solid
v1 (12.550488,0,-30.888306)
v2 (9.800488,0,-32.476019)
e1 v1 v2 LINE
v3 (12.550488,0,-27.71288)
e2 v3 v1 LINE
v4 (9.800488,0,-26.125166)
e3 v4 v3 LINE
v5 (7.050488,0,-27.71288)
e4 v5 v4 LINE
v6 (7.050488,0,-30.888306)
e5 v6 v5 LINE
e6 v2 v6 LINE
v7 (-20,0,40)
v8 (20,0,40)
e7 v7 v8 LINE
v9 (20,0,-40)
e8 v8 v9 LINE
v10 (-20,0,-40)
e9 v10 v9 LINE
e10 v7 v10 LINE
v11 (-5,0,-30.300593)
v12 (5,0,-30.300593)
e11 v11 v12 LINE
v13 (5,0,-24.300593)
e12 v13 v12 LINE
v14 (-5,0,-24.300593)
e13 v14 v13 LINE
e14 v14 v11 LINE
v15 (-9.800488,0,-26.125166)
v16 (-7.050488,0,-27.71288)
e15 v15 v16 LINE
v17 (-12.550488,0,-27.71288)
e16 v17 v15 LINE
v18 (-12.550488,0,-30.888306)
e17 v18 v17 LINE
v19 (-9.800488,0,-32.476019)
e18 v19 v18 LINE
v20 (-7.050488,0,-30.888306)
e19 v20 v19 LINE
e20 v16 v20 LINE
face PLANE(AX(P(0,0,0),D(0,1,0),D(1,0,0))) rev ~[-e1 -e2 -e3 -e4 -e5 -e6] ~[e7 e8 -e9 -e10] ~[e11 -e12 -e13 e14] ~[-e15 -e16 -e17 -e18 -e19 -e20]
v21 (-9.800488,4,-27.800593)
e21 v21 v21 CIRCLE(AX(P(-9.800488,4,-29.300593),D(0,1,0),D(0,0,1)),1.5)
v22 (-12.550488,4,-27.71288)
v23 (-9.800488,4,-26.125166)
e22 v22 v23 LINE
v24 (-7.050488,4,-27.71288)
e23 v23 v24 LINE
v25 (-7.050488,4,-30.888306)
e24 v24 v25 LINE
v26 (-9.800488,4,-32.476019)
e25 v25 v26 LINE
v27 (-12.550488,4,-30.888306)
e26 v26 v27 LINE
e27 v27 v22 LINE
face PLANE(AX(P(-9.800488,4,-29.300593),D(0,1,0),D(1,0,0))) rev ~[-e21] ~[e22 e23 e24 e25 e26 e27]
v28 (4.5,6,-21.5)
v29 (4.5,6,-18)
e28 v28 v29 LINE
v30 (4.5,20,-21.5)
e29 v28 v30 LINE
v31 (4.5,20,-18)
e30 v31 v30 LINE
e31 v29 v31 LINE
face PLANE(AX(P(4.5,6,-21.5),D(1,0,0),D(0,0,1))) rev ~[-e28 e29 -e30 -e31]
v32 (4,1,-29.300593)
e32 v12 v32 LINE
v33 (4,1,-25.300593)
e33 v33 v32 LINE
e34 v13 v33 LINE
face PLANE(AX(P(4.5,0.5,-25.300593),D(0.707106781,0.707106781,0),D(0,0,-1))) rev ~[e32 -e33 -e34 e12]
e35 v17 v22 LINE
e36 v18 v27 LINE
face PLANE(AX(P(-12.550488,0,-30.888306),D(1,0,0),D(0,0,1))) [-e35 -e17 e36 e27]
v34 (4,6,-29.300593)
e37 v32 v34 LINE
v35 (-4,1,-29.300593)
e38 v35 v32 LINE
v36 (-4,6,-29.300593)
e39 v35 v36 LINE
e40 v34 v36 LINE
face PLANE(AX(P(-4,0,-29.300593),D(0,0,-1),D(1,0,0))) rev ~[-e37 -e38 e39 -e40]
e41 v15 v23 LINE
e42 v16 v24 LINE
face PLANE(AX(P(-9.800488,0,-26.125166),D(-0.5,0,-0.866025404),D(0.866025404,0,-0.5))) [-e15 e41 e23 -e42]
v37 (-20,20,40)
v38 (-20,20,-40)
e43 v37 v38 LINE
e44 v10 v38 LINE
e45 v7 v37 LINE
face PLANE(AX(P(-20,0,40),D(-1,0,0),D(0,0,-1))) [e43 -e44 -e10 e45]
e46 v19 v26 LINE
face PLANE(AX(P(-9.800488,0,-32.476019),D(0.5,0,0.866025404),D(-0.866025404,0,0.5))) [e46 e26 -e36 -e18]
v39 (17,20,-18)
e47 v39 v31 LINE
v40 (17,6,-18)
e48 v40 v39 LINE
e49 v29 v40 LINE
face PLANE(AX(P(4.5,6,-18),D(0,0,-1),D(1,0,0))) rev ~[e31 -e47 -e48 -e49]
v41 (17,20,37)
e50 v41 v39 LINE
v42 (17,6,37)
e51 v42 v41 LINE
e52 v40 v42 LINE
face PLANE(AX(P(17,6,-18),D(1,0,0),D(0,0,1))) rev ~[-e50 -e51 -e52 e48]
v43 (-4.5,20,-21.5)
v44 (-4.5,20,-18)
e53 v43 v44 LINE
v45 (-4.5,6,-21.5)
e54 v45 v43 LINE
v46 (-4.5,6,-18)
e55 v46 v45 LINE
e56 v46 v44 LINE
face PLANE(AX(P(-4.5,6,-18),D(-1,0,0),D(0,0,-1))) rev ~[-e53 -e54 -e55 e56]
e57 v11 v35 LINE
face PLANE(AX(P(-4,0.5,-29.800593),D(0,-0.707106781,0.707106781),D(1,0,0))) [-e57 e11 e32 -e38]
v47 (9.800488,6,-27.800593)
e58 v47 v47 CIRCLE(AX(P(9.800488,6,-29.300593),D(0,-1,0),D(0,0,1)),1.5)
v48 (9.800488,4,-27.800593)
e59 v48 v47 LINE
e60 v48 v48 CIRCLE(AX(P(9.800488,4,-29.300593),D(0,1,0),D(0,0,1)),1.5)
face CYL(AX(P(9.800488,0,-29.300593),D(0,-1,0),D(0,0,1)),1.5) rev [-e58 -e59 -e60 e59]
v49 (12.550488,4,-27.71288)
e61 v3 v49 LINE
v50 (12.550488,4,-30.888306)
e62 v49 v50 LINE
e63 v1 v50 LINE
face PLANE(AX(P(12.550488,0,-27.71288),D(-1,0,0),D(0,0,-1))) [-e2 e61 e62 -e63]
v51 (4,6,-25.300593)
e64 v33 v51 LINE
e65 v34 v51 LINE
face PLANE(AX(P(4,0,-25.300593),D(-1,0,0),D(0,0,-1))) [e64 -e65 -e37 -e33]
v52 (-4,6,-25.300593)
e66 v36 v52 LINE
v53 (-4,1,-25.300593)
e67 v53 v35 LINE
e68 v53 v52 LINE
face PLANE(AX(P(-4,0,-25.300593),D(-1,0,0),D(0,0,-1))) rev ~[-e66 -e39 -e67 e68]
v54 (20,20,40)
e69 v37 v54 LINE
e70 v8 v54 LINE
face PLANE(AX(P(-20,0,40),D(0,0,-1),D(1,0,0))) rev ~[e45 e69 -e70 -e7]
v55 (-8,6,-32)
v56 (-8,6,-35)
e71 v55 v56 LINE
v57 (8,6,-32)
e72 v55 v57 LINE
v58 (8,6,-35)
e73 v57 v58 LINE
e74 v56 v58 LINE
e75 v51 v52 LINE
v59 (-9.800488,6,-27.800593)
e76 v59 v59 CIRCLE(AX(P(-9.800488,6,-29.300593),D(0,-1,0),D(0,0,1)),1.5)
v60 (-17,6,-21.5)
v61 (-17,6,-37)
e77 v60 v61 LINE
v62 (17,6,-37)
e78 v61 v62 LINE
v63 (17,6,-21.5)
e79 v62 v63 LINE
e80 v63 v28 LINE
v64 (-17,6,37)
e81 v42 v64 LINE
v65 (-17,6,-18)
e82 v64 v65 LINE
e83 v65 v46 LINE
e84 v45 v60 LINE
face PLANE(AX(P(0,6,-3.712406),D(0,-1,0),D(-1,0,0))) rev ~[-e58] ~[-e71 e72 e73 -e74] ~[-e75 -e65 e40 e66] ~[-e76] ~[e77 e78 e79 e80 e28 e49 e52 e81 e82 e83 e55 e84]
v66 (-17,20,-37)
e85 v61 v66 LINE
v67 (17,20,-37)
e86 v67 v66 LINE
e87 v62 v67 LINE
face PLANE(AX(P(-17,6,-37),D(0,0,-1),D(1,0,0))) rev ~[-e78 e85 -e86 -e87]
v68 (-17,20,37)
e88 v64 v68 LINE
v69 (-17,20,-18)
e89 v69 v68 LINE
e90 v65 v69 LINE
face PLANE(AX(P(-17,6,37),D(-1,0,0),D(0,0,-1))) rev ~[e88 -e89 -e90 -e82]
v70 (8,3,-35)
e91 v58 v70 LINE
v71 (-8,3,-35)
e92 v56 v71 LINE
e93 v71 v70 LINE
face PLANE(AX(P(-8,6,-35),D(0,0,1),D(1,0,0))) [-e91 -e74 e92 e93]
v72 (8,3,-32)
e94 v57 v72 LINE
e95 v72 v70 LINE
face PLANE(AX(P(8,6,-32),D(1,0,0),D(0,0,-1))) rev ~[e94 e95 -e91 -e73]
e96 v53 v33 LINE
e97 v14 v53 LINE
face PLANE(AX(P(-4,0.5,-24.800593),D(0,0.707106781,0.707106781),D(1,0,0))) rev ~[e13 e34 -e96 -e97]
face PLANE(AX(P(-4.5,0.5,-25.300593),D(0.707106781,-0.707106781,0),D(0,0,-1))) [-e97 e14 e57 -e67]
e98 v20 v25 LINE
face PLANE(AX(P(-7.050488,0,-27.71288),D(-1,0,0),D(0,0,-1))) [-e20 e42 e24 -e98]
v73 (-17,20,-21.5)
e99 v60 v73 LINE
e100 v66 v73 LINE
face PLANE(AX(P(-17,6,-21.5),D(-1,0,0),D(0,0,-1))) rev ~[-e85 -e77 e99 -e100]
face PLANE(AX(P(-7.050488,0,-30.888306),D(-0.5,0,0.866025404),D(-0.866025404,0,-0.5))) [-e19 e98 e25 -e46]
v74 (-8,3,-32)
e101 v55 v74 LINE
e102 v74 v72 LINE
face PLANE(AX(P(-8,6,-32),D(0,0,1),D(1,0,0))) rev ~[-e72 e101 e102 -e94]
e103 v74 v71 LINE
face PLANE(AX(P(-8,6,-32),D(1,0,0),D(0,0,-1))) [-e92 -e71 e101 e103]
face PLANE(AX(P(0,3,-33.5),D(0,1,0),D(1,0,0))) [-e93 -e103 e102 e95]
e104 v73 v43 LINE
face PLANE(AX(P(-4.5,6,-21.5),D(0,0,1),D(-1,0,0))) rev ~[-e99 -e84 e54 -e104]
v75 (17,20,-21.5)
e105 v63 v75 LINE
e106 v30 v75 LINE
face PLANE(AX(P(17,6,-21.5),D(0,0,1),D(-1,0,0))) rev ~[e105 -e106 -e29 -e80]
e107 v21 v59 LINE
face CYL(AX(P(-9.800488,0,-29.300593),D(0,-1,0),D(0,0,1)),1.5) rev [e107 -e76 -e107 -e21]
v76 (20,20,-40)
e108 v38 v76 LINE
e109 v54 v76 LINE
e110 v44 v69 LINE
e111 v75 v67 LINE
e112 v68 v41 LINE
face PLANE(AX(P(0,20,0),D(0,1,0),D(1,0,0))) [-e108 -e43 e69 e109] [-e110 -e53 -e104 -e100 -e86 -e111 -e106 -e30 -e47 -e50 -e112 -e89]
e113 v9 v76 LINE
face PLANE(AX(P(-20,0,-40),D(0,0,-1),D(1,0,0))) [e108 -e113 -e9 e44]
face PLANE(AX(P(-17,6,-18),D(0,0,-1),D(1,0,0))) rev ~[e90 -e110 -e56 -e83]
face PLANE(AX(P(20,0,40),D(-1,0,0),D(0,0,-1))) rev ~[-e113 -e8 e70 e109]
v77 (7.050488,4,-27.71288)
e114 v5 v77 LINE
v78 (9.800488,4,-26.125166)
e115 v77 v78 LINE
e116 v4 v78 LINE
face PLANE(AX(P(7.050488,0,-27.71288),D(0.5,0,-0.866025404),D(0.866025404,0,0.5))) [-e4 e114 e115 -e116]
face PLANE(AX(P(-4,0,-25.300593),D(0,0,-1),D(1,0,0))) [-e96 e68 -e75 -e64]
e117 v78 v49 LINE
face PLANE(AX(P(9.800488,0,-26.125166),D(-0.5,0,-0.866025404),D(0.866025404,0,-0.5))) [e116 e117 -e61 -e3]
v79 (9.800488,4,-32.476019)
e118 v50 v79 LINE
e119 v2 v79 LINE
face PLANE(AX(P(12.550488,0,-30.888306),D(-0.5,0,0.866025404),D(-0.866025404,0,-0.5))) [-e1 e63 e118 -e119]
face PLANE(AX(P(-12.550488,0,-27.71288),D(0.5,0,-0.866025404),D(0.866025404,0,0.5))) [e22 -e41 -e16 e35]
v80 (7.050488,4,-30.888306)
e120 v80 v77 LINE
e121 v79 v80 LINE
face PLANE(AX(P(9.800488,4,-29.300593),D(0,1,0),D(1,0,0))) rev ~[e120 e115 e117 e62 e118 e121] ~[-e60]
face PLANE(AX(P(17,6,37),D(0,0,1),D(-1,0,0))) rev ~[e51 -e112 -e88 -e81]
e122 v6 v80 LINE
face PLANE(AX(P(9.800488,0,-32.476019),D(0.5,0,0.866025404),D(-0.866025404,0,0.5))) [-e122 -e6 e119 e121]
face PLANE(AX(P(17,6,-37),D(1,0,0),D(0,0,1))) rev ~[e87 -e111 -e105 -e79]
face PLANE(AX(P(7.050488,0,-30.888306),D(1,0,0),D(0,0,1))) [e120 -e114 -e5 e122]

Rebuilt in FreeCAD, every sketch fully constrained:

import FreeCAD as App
import Part
import Sketcher
from FreeCAD import Vector
Q = App.Units.Quantity


def edges_at(feature, points):
    """Names of the edges that pass closest to the given points."""
    edges = feature.Shape.Edges
    near = lambda p: min(range(len(edges)), key=lambda i: edges[i].distToShape(Part.Vertex(*p))[0])
    return sorted({f"Edge{near(p) + 1}" for p in points})

doc = App.newDocument("Part")
body = doc.addObject("PartDesign::Body", "Body")

sketch1 = body.newObject("Sketcher::SketchObject", "Sketch")
sketch1.AttachmentSupport = (doc.getObject("XZ_Plane"), [""])
sketch1.MapMode = "FlatFace"
sketch1.addGeometry(Part.LineSegment(Vector(-20, -40, 0), Vector(-20, 40, 0)), False)
sketch1.addGeometry(Part.LineSegment(Vector(-20, 40, 0), Vector(20, 40, 0)), False)
sketch1.addGeometry(Part.LineSegment(Vector(20, 40, 0), Vector(20, -40, 0)), False)
sketch1.addGeometry(Part.LineSegment(Vector(20, -40, 0), Vector(-20, -40, 0)), False)
sketch1.addGeometry(Part.LineSegment(Vector(4, -25.3, 0), Vector(-4, -25.3, 0)), False)
sketch1.addGeometry(Part.LineSegment(Vector(-4, -25.3, 0), Vector(-4, -29.3, 0)), False)
sketch1.addGeometry(Part.LineSegment(Vector(-4, -29.3, 0), Vector(4, -29.3, 0)), False)
sketch1.addGeometry(Part.LineSegment(Vector(4, -29.3, 0), Vector(4, -25.3, 0)), False)
sketch1.addGeometry(Part.Circle(Vector(-9.8, -29.3, 0), Vector(0, 0, 1), 1.5), False)
sketch1.addGeometry(Part.Circle(Vector(9.8, -29.3, 0), Vector(0, 0, 1), 1.5), False)
sketch1.addConstraint(Sketcher.Constraint("Coincident", 0, 2, 1, 1))
sketch1.addConstraint(Sketcher.Constraint("Coincident", 1, 2, 2, 1))
sketch1.addConstraint(Sketcher.Constraint("Coincident", 2, 2, 3, 1))
sketch1.addConstraint(Sketcher.Constraint("Coincident", 3, 2, 0, 1))
sketch1.addConstraint(Sketcher.Constraint("Coincident", 4, 2, 5, 1))
sketch1.addConstraint(Sketcher.Constraint("Coincident", 5, 2, 6, 1))
sketch1.addConstraint(Sketcher.Constraint("Coincident", 6, 2, 7, 1))
sketch1.addConstraint(Sketcher.Constraint("Coincident", 7, 2, 4, 1))
sketch1.addConstraint(Sketcher.Constraint("Vertical", 0))
sketch1.addConstraint(Sketcher.Constraint("Horizontal", 1))
sketch1.addConstraint(Sketcher.Constraint("Vertical", 2))
sketch1.addConstraint(Sketcher.Constraint("Horizontal", 3))
sketch1.addConstraint(Sketcher.Constraint("Horizontal", 4))
sketch1.addConstraint(Sketcher.Constraint("Vertical", 5))
sketch1.addConstraint(Sketcher.Constraint("Horizontal", 6))
sketch1.addConstraint(Sketcher.Constraint("Vertical", 7))
sketch1.addConstraint(Sketcher.Constraint("Equal", 8, 9))
sketch1.addConstraint(Sketcher.Constraint("Symmetric", 0, 2, 2, 2, -1, 1))
sketch1.addConstraint(Sketcher.Constraint("Symmetric", 8, 3, 9, 3, -2))
sketch1.addConstraint(Sketcher.Constraint("Horizontal", 9, 3, 5, 2))
sketch1.addConstraint(Sketcher.Constraint("Diameter", 8, Q("3 mm")))
sketch1.addConstraint(Sketcher.Constraint("DistanceX", 1, 1, 1, 2, Q("40 mm")))
sketch1.addConstraint(Sketcher.Constraint("DistanceX", 4, 2, 4, 1, Q("8 mm")))
sketch1.addConstraint(Sketcher.Constraint("DistanceY", 0, 1, 0, 2, Q("80 mm")))
sketch1.addConstraint(Sketcher.Constraint("DistanceY", 5, 2, 5, 1, Q("4 mm")))
sketch1.addConstraint(Sketcher.Constraint("DistanceX", 4, 2, -1, 1, Q("4 mm")))
sketch1.addConstraint(Sketcher.Constraint("DistanceX", 8, 3, -1, 1, Q("9.800488 mm")))
sketch1.addConstraint(Sketcher.Constraint("DistanceY", 8, 3, -1, 1, Q("29.300593 mm")))
pad1 = body.newObject("PartDesign::Pad", "Pad")
pad1.Profile = sketch1
pad1.Length = 20
pad1.Reversed = True

sketch2 = body.newObject("Sketcher::SketchObject", "Sketch001")
sketch2.AttachmentSupport = (doc.getObject("XZ_Plane"), [""])
sketch2.MapMode = "FlatFace"
sketch2.AttachmentOffset = App.Placement(Vector(0, 0, -6), App.Rotation())
sketch2.addGeometry(Part.LineSegment(Vector(-17, 37, 0), Vector(17, 37, 0)), False)
sketch2.addGeometry(Part.LineSegment(Vector(17, 37, 0), Vector(17, -18, 0)), False)
sketch2.addGeometry(Part.LineSegment(Vector(17, -18, 0), Vector(4.5, -18, 0)), False)
sketch2.addGeometry(Part.LineSegment(Vector(4.5, -18, 0), Vector(4.5, -21.5, 0)), False)
sketch2.addGeometry(Part.LineSegment(Vector(4.5, -21.5, 0), Vector(17, -21.5, 0)), False)
sketch2.addGeometry(Part.LineSegment(Vector(17, -21.5, 0), Vector(17, -37, 0)), False)
sketch2.addGeometry(Part.LineSegment(Vector(17, -37, 0), Vector(-17, -37, 0)), False)
sketch2.addGeometry(Part.LineSegment(Vector(-17, -37, 0), Vector(-17, -21.5, 0)), False)
sketch2.addGeometry(Part.LineSegment(Vector(-17, -21.5, 0), Vector(-4.5, -21.5, 0)), False)
sketch2.addGeometry(Part.LineSegment(Vector(-4.5, -21.5, 0), Vector(-4.5, -18, 0)), False)
sketch2.addGeometry(Part.LineSegment(Vector(-4.5, -18, 0), Vector(-17, -18, 0)), False)
sketch2.addGeometry(Part.LineSegment(Vector(-17, -18, 0), Vector(-17, 37, 0)), False)
sketch2.addConstraint(Sketcher.Constraint("Coincident", 0, 2, 1, 1))
sketch2.addConstraint(Sketcher.Constraint("Coincident", 1, 2, 2, 1))
sketch2.addConstraint(Sketcher.Constraint("Coincident", 2, 2, 3, 1))
sketch2.addConstraint(Sketcher.Constraint("Coincident", 3, 2, 4, 1))
sketch2.addConstraint(Sketcher.Constraint("Coincident", 4, 2, 5, 1))
sketch2.addConstraint(Sketcher.Constraint("Coincident", 5, 2, 6, 1))
sketch2.addConstraint(Sketcher.Constraint("Coincident", 6, 2, 7, 1))
sketch2.addConstraint(Sketcher.Constraint("Coincident", 7, 2, 8, 1))
sketch2.addConstraint(Sketcher.Constraint("Coincident", 8, 2, 9, 1))
sketch2.addConstraint(Sketcher.Constraint("Coincident", 9, 2, 10, 1))
sketch2.addConstraint(Sketcher.Constraint("Coincident", 10, 2, 11, 1))
sketch2.addConstraint(Sketcher.Constraint("Coincident", 11, 2, 0, 1))
sketch2.addConstraint(Sketcher.Constraint("Horizontal", 0))
sketch2.addConstraint(Sketcher.Constraint("Vertical", 1))
sketch2.addConstraint(Sketcher.Constraint("Horizontal", 2))
sketch2.addConstraint(Sketcher.Constraint("Vertical", 3))
sketch2.addConstraint(Sketcher.Constraint("Horizontal", 4))
sketch2.addConstraint(Sketcher.Constraint("Vertical", 5))
sketch2.addConstraint(Sketcher.Constraint("Horizontal", 6))
sketch2.addConstraint(Sketcher.Constraint("Vertical", 7))
sketch2.addConstraint(Sketcher.Constraint("Horizontal", 8))
sketch2.addConstraint(Sketcher.Constraint("Vertical", 9))
sketch2.addConstraint(Sketcher.Constraint("Horizontal", 10))
sketch2.addConstraint(Sketcher.Constraint("Vertical", 11))
sketch2.addConstraint(Sketcher.Constraint("Symmetric", 0, 2, 6, 2, -1, 1))
sketch2.addConstraint(Sketcher.Constraint("Symmetric", 4, 2, 7, 2, -2))
sketch2.addConstraint(Sketcher.Constraint("Symmetric", 2, 2, 9, 2, -2))
sketch2.addConstraint(Sketcher.Constraint("Vertical", 7, 2, 10, 2))
sketch2.addConstraint(Sketcher.Constraint("DistanceX", 0, 1, 0, 2, Q("34 mm")))
sketch2.addConstraint(Sketcher.Constraint("DistanceY", 1, 2, 1, 1, Q("55 mm")))
sketch2.addConstraint(Sketcher.Constraint("DistanceX", 2, 2, 2, 1, Q("12.5 mm")))
sketch2.addConstraint(Sketcher.Constraint("DistanceY", 3, 2, 3, 1, Q("3.5 mm")))
sketch2.addConstraint(Sketcher.Constraint("DistanceY", 5, 2, 5, 1, Q("15.5 mm")))
pocket1 = body.newObject("PartDesign::Pocket", "Pocket")
pocket1.Profile = sketch2
pocket1.Type = "ThroughAll"

sketch3 = body.newObject("Sketcher::SketchObject", "Sketch002")
sketch3.AttachmentSupport = (doc.getObject("XZ_Plane"), [""])
sketch3.MapMode = "FlatFace"
sketch3.addGeometry(Part.LineSegment(Vector(12.6, -27.7, 0), Vector(12.6, -30.9, 0)), False)
sketch3.addGeometry(Part.LineSegment(Vector(12.6, -30.9, 0), Vector(9.8, -32.5, 0)), False)
sketch3.addGeometry(Part.LineSegment(Vector(9.8, -32.5, 0), Vector(7.1, -30.9, 0)), False)
sketch3.addGeometry(Part.LineSegment(Vector(7.1, -30.9, 0), Vector(7.1, -27.7, 0)), False)
sketch3.addGeometry(Part.LineSegment(Vector(7.1, -27.7, 0), Vector(9.8, -26.1, 0)), False)
sketch3.addGeometry(Part.LineSegment(Vector(9.8, -26.1, 0), Vector(12.6, -27.7, 0)), False)
sketch3.addGeometry(Part.Circle(Vector(9.8, -29.3, 0), Vector(0, 0, 1), 1.5), False)
sketch3.addGeometry(Part.LineSegment(Vector(-7.1, -27.7, 0), Vector(-7.1, -30.9, 0)), False)
sketch3.addGeometry(Part.LineSegment(Vector(-7.1, -30.9, 0), Vector(-9.8, -32.5, 0)), False)
sketch3.addGeometry(Part.LineSegment(Vector(-9.8, -32.5, 0), Vector(-12.6, -30.9, 0)), False)
sketch3.addGeometry(Part.LineSegment(Vector(-12.6, -30.9, 0), Vector(-12.6, -27.7, 0)), False)
sketch3.addGeometry(Part.LineSegment(Vector(-12.6, -27.7, 0), Vector(-9.8, -26.1, 0)), False)
sketch3.addGeometry(Part.LineSegment(Vector(-9.8, -26.1, 0), Vector(-7.1, -27.7, 0)), False)
sketch3.addGeometry(Part.Circle(Vector(-9.8, -29.3, 0), Vector(0, 0, 1), 1.5), False)
sketch3.addConstraint(Sketcher.Constraint("Coincident", 0, 2, 1, 1))
sketch3.addConstraint(Sketcher.Constraint("Coincident", 1, 2, 2, 1))
sketch3.addConstraint(Sketcher.Constraint("Coincident", 2, 2, 3, 1))
sketch3.addConstraint(Sketcher.Constraint("Coincident", 3, 2, 4, 1))
sketch3.addConstraint(Sketcher.Constraint("Coincident", 4, 2, 5, 1))
sketch3.addConstraint(Sketcher.Constraint("Coincident", 5, 2, 0, 1))
sketch3.addConstraint(Sketcher.Constraint("Coincident", 7, 2, 8, 1))
sketch3.addConstraint(Sketcher.Constraint("Coincident", 8, 2, 9, 1))
sketch3.addConstraint(Sketcher.Constraint("Coincident", 9, 2, 10, 1))
sketch3.addConstraint(Sketcher.Constraint("Coincident", 10, 2, 11, 1))
sketch3.addConstraint(Sketcher.Constraint("Coincident", 11, 2, 12, 1))
sketch3.addConstraint(Sketcher.Constraint("Coincident", 12, 2, 7, 1))
sketch3.addConstraint(Sketcher.Constraint("Vertical", 0))
sketch3.addConstraint(Sketcher.Constraint("Vertical", 3))
sketch3.addConstraint(Sketcher.Constraint("Vertical", 7))
sketch3.addConstraint(Sketcher.Constraint("Vertical", 10))
sketch3.addConstraint(Sketcher.Constraint("Equal", 6, 13))
sketch3.addConstraint(Sketcher.Constraint("Symmetric", 6, 3, 13, 3, -2))
sketch3.addConstraint(Sketcher.Constraint("Symmetric", 2, 2, 7, 2, -2))
sketch3.addConstraint(Sketcher.Constraint("Symmetric", 1, 2, 8, 2, -2))
sketch3.addConstraint(Sketcher.Constraint("Symmetric", 0, 2, 9, 2, -2))
sketch3.addConstraint(Sketcher.Constraint("Symmetric", 4, 2, 11, 2, -2))
sketch3.addConstraint(Sketcher.Constraint("Parallel", 1, 4))
sketch3.addConstraint(Sketcher.Constraint("Parallel", 2, 5))
sketch3.addConstraint(Sketcher.Constraint("Parallel", 4, 8))
sketch3.addConstraint(Sketcher.Constraint("Parallel", 8, 11))
sketch3.addConstraint(Sketcher.Constraint("Parallel", 9, 12))
sketch3.addConstraint(Sketcher.Constraint("Horizontal", 0, 2, 2, 2))
sketch3.addConstraint(Sketcher.Constraint("Horizontal", 3, 2, 5, 2))
sketch3.addConstraint(Sketcher.Constraint("Vertical", 6, 3, 1, 2))
sketch3.addConstraint(Sketcher.Constraint("Diameter", 6, Q("3 mm")))
sketch3.addConstraint(Sketcher.Constraint("Angle", 1, Q("-150 deg")))
sketch3.addConstraint(Sketcher.Constraint("DistanceX", 2, 2, 0, 2, Q("5.5 mm")))
sketch3.addConstraint(Sketcher.Constraint("DistanceY", 0, 2, 0, 1, Q("3.175426 mm")))
sketch3.addConstraint(Sketcher.Constraint("DistanceY", 1, 2, -1, 1, Q("32.476019 mm")))
sketch3.addConstraint(Sketcher.Constraint("DistanceX", -1, 1, 6, 3, Q("9.800488 mm")))
sketch3.addConstraint(Sketcher.Constraint("DistanceY", 6, 3, -1, 1, Q("29.300593 mm")))
pocket2 = body.newObject("PartDesign::Pocket", "Pocket001")
pocket2.Profile = sketch3
pocket2.Length = 4
doc.recompute()

chamfer = body.newObject("PartDesign::Chamfer", "Chamfer")
chamfer.Base = (pocket2, edges_at(pocket2, [
    (0, 0, -29.301),
    (-4, 0, -27.301),
    (0, 0, -25.301),
    (4, 0, -27.301),
]))
chamfer.Size = 1

sketch4 = body.newObject("Sketcher::SketchObject", "Sketch003")
sketch4.AttachmentSupport = (doc.getObject("XZ_Plane"), [""])
sketch4.MapMode = "FlatFace"
sketch4.AttachmentOffset = App.Placement(Vector(0, 0, -6), App.Rotation())
sketch4.addGeometry(Part.LineSegment(Vector(-8, -35, 0), Vector(-8, -32, 0)), False)
sketch4.addGeometry(Part.LineSegment(Vector(-8, -32, 0), Vector(8, -32, 0)), False)
sketch4.addGeometry(Part.LineSegment(Vector(8, -32, 0), Vector(8, -35, 0)), False)
sketch4.addGeometry(Part.LineSegment(Vector(8, -35, 0), Vector(-8, -35, 0)), False)
sketch4.addConstraint(Sketcher.Constraint("Coincident", 0, 2, 1, 1))
sketch4.addConstraint(Sketcher.Constraint("Coincident", 1, 2, 2, 1))
sketch4.addConstraint(Sketcher.Constraint("Coincident", 2, 2, 3, 1))
sketch4.addConstraint(Sketcher.Constraint("Coincident", 3, 2, 0, 1))
sketch4.addConstraint(Sketcher.Constraint("Vertical", 0))
sketch4.addConstraint(Sketcher.Constraint("Horizontal", 1))
sketch4.addConstraint(Sketcher.Constraint("Vertical", 2))
sketch4.addConstraint(Sketcher.Constraint("Horizontal", 3))
sketch4.addConstraint(Sketcher.Constraint("DistanceX", 1, 1, 1, 2, Q("16 mm")))
sketch4.addConstraint(Sketcher.Constraint("DistanceY", 0, 1, 0, 2, Q("3 mm")))
sketch4.addConstraint(Sketcher.Constraint("DistanceX", 0, 2, -1, 1, Q("8 mm")))
sketch4.addConstraint(Sketcher.Constraint("DistanceY", 0, 2, -1, 1, Q("32 mm")))
pocket3 = body.newObject("PartDesign::Pocket", "Pocket002")
pocket3.Profile = sketch4
pocket3.Length = 3
pocket3.Reversed = True

doc.recompute()
